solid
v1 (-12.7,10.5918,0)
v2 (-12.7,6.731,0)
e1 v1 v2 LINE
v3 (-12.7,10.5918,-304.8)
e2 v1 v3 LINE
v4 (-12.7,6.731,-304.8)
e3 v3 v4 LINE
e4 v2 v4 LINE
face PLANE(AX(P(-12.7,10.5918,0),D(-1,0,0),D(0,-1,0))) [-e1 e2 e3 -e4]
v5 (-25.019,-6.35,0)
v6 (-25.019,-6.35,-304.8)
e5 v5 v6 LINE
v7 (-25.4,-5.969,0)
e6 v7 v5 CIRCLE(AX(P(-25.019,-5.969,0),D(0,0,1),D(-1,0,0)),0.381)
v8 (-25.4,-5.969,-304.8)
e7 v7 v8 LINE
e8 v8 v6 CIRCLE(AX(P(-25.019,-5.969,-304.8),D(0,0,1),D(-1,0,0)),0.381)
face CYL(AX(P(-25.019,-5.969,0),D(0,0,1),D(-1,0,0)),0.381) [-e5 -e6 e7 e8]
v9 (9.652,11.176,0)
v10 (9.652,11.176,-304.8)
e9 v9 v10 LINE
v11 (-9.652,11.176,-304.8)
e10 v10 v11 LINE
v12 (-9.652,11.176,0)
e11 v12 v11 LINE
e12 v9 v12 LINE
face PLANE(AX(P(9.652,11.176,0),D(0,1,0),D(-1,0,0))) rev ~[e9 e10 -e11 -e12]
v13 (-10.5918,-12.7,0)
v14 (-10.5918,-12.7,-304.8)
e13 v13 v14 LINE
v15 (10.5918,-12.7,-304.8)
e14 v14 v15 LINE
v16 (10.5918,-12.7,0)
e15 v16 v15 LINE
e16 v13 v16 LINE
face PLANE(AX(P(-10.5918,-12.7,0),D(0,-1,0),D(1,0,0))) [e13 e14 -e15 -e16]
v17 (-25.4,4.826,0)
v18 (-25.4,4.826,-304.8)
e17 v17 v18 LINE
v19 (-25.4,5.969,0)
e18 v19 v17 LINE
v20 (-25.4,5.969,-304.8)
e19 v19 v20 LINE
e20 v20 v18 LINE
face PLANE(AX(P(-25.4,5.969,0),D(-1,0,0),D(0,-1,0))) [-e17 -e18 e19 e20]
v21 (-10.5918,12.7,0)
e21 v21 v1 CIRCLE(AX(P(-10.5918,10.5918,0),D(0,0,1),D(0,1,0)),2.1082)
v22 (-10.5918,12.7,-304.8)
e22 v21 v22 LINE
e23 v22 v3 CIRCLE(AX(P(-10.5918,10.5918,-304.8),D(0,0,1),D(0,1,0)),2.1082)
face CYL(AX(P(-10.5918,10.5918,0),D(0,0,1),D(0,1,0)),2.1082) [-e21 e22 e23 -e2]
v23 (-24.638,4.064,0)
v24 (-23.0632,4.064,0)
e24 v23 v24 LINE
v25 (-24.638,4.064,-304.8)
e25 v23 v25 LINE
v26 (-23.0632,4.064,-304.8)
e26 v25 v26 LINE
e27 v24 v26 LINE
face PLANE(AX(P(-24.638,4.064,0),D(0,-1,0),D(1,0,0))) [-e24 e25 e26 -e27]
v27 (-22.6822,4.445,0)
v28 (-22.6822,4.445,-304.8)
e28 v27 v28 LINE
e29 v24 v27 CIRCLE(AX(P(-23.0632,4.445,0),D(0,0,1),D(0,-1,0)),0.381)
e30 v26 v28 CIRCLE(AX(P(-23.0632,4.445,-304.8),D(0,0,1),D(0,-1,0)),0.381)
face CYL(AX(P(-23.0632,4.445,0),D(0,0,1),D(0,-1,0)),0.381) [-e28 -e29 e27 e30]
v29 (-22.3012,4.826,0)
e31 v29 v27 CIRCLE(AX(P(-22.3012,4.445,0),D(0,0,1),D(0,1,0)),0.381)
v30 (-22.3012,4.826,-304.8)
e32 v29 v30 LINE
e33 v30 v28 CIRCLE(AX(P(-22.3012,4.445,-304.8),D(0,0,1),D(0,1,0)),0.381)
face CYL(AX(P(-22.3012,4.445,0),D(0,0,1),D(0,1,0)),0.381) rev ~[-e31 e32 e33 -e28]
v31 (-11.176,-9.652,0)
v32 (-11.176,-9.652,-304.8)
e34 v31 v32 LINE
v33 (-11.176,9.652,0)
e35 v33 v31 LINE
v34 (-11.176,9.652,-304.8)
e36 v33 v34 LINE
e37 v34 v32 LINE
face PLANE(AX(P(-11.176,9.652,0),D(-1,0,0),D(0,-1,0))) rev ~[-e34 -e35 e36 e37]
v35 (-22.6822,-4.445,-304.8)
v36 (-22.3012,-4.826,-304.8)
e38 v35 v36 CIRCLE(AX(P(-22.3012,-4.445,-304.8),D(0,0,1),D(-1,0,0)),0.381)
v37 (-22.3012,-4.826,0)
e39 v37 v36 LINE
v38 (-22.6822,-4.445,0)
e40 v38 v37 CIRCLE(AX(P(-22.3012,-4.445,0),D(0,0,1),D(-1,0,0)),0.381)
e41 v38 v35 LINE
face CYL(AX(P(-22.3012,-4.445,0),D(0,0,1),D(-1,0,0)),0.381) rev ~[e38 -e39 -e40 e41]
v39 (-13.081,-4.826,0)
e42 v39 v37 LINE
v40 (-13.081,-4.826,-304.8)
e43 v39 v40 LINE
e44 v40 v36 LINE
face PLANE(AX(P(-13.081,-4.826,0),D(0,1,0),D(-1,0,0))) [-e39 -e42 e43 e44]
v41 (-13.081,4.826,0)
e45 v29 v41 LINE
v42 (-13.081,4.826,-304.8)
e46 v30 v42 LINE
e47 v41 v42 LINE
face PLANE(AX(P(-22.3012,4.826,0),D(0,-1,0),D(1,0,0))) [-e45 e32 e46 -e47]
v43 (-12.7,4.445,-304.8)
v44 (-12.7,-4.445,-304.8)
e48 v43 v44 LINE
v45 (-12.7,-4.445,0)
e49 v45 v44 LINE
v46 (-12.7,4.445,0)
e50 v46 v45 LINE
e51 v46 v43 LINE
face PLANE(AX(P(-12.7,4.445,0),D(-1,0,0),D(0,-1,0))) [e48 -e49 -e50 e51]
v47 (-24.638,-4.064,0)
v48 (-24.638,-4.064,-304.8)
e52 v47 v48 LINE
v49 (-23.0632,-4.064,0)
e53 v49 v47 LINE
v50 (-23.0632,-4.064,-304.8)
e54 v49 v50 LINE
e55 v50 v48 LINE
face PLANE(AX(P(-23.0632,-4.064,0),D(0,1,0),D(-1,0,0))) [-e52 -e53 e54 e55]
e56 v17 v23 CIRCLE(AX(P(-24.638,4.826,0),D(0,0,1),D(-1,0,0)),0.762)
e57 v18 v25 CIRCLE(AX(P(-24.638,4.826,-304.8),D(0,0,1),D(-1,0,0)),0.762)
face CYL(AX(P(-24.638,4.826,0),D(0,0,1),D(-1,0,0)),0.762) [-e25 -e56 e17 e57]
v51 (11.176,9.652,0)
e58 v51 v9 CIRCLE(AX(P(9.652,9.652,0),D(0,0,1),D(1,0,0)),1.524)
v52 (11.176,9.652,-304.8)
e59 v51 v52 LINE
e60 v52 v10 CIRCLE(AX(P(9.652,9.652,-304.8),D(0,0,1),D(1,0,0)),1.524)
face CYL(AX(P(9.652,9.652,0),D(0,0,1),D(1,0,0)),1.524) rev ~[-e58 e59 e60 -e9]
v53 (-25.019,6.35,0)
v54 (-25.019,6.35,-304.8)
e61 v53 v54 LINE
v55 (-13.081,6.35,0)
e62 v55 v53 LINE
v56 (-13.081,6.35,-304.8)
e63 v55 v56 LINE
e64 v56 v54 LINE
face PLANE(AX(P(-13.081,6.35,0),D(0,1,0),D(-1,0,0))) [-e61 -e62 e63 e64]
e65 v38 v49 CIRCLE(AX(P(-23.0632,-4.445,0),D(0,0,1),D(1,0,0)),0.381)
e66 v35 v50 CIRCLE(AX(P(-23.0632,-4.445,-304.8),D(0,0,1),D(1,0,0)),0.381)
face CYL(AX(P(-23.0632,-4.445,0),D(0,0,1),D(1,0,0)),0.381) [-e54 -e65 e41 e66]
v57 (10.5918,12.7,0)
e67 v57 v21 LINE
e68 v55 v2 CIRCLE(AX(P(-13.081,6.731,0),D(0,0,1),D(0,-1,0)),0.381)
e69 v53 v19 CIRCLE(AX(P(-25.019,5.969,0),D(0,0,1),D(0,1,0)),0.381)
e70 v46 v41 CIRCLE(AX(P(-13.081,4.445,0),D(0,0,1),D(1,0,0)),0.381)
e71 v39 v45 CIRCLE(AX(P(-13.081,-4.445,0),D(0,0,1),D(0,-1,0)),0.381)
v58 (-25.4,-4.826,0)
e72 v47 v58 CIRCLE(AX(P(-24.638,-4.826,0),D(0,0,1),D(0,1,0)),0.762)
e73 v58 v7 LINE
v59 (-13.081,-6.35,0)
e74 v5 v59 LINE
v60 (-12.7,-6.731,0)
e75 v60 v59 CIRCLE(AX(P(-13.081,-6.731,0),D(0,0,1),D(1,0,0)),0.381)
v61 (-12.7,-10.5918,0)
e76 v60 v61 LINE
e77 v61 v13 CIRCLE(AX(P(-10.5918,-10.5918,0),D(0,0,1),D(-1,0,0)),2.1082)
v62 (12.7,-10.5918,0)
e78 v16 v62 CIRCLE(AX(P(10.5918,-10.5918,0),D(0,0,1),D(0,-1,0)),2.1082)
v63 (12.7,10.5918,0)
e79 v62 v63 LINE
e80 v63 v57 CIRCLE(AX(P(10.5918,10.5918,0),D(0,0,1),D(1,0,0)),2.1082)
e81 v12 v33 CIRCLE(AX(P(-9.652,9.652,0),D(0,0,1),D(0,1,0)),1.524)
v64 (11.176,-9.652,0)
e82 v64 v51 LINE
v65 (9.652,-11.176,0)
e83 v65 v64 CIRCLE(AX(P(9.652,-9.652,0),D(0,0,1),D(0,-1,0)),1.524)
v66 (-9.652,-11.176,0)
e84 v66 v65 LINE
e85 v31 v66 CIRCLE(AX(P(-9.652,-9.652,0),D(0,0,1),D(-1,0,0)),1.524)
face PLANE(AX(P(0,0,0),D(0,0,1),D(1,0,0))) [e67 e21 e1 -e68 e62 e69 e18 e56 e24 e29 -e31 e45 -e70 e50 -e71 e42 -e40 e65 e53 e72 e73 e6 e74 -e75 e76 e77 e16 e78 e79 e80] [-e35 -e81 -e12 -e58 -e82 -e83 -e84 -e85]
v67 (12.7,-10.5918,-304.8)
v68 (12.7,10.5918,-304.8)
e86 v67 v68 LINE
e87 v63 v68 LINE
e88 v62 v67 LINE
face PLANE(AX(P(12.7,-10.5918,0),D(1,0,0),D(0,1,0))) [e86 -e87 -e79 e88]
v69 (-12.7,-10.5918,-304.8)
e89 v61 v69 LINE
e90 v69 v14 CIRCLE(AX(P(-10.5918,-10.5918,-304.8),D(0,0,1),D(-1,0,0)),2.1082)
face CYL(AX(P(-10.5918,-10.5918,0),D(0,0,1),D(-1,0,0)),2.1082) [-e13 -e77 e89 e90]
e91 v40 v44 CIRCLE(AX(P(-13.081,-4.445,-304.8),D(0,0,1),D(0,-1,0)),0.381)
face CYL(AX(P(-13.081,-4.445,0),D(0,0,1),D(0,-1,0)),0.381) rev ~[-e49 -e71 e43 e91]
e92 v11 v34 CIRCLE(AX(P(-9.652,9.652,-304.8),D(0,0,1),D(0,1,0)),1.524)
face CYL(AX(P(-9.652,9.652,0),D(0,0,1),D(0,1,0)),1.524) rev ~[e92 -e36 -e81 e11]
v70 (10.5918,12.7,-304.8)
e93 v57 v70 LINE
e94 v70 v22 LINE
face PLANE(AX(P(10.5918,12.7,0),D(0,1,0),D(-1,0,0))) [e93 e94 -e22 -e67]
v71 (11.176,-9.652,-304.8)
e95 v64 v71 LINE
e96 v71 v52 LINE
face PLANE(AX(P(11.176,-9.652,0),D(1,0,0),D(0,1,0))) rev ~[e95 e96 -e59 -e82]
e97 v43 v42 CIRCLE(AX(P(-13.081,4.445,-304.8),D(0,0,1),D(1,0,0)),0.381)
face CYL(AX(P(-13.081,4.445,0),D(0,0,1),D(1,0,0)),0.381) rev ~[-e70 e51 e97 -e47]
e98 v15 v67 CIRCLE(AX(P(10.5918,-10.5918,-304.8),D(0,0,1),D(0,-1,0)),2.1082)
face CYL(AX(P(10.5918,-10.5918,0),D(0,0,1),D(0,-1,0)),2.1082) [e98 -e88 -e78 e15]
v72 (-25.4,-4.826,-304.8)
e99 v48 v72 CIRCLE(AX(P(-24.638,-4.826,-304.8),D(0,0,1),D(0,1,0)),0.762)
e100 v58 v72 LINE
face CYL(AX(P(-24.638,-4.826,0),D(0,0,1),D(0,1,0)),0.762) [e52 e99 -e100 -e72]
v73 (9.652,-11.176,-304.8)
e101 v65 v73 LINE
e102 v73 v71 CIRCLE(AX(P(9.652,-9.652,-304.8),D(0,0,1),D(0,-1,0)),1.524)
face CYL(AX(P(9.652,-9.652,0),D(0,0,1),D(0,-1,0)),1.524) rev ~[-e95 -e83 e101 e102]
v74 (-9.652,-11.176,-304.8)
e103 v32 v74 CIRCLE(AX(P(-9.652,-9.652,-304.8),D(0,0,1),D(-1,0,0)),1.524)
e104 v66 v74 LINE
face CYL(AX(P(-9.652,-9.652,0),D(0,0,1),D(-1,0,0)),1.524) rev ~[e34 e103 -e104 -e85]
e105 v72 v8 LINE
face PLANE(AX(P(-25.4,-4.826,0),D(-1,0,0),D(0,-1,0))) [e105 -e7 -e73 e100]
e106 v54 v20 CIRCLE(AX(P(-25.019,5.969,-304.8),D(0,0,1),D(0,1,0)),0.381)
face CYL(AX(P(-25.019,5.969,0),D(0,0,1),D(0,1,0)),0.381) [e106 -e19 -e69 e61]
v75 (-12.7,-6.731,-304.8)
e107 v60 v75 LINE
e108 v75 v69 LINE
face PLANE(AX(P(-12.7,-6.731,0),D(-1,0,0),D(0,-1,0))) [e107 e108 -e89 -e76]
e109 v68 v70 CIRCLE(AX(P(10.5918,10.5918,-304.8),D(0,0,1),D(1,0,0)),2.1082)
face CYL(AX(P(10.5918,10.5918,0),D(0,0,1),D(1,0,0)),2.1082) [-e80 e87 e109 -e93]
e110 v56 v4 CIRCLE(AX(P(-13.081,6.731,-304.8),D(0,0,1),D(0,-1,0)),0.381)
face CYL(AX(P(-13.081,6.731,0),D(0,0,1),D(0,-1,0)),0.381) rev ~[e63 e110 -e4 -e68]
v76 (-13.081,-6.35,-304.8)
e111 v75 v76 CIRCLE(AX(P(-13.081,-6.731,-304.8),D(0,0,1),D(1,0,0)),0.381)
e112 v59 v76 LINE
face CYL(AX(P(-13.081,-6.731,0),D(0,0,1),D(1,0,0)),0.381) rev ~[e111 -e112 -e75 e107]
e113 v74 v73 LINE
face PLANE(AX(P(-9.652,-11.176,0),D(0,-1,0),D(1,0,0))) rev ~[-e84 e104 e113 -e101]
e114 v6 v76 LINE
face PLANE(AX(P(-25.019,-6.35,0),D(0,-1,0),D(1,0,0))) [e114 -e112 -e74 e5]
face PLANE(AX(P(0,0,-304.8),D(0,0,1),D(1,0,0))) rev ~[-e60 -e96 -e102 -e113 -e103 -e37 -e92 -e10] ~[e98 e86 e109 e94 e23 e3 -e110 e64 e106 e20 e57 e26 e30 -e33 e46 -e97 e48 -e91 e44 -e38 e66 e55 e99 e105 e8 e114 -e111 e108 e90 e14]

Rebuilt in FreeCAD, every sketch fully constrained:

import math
import FreeCAD as App
import Part
import Sketcher

V = App.Vector
Q = App.Units.Quantity

doc = App.newDocument("Part")
body = doc.addObject("PartDesign::Body", "Body")

# Sketch on XY plane
sketch1 = body.newObject("Sketcher::SketchObject", "Sketch")
sketch1.AttachmentSupport = (doc.getObject("XY_Plane"), [""])
sketch1.MapMode = "FlatFace"
sketch1.addGeometry([
    Part.LineSegment(V(12.7, -10.5918, 0), V(12.7, 10.5918, 0)),  # 0
    Part.ArcOfCircle(Part.Circle(V(10.5918, 10.5918, 0), V(0, 0, 1), 2.1082), math.radians(0), math.radians(90)),  # 1
    Part.LineSegment(V(10.5918, 12.7, 0), V(-10.5918, 12.7, 0)),  # 2
    Part.ArcOfCircle(Part.Circle(V(-10.5918, 10.5918, 0), V(0, 0, 1), 2.1082), math.radians(90), math.radians(180)),  # 3
    Part.LineSegment(V(-12.7, 10.5918, 0), V(-12.7, 6.731, 0)),  # 4
    Part.ArcOfCircle(Part.Circle(V(-13.081, 6.731, 0), V(0, 0, 1), 0.381), math.radians(-90), math.radians(0)),  # 5
    Part.LineSegment(V(-13.081, 6.35, 0), V(-25.019, 6.35, 0)),  # 6
    Part.ArcOfCircle(Part.Circle(V(-25.019, 5.969, 0), V(0, 0, 1), 0.381), math.radians(90), math.radians(180)),  # 7
    Part.LineSegment(V(-25.4, 5.969, 0), V(-25.4, 4.826, 0)),  # 8
    Part.ArcOfCircle(Part.Circle(V(-24.638, 4.826, 0), V(0, 0, 1), 0.762), math.radians(180), math.radians(270)),  # 9
    Part.LineSegment(V(-24.638, 4.064, 0), V(-23.0632, 4.064, 0)),  # 10
    Part.ArcOfCircle(Part.Circle(V(-23.0632, 4.445, 0), V(0, 0, 1), 0.381), math.radians(-90), math.radians(0)),  # 11
    Part.ArcOfCircle(Part.Circle(V(-22.3012, 4.445, 0), V(0, 0, 1), 0.381), math.radians(90), math.radians(180)),  # 12
    Part.LineSegment(V(-22.3012, 4.826, 0), V(-13.081, 4.826, 0)),  # 13
    Part.ArcOfCircle(Part.Circle(V(-13.081, 4.445, 0), V(0, 0, 1), 0.381), math.radians(0), math.radians(90)),  # 14
    Part.LineSegment(V(-12.7, 4.445, 0), V(-12.7, -4.445, 0)),  # 15
    Part.ArcOfCircle(Part.Circle(V(-13.081, -4.445, 0), V(0, 0, 1), 0.381), math.radians(-90), math.radians(0)),  # 16
    Part.LineSegment(V(-13.081, -4.826, 0), V(-22.3012, -4.826, 0)),  # 17
    Part.ArcOfCircle(Part.Circle(V(-22.3012, -4.445, 0), V(0, 0, 1), 0.381), math.radians(180), math.radians(270)),  # 18
    Part.ArcOfCircle(Part.Circle(V(-23.0632, -4.445, 0), V(0, 0, 1), 0.381), math.radians(0), math.radians(90)),  # 19
    Part.LineSegment(V(-23.0632, -4.064, 0), V(-24.638, -4.064, 0)),  # 20
    Part.ArcOfCircle(Part.Circle(V(-24.638, -4.826, 0), V(0, 0, 1), 0.762), math.radians(90), math.radians(180)),  # 21
    Part.LineSegment(V(-25.4, -4.826, 0), V(-25.4, -5.969, 0)),  # 22
    Part.ArcOfCircle(Part.Circle(V(-25.019, -5.969, 0), V(0, 0, 1), 0.381), math.radians(180), math.radians(270)),  # 23
    Part.LineSegment(V(-25.019, -6.35, 0), V(-13.081, -6.35, 0)),  # 24
    Part.ArcOfCircle(Part.Circle(V(-13.081, -6.731, 0), V(0, 0, 1), 0.381), math.radians(0), math.radians(90)),  # 25
    Part.LineSegment(V(-12.7, -6.731, 0), V(-12.7, -10.5918, 0)),  # 26
    Part.ArcOfCircle(Part.Circle(V(-10.5918, -10.5918, 0), V(0, 0, 1), 2.1082), math.radians(180), math.radians(270)),  # 27
    Part.LineSegment(V(-10.5918, -12.7, 0), V(10.5918, -12.7, 0)),  # 28
    Part.ArcOfCircle(Part.Circle(V(10.5918, -10.5918, 0), V(0, 0, 1), 2.1082), math.radians(-90), math.radians(0)),  # 29
    Part.ArcOfCircle(Part.Circle(V(-9.652, -9.652, 0), V(0, 0, 1), 1.524), math.radians(180), math.radians(270)),  # 30
    Part.LineSegment(V(-11.176, -9.652, 0), V(-11.176, 9.652, 0)),  # 31
    Part.ArcOfCircle(Part.Circle(V(-9.652, 9.652, 0), V(0, 0, 1), 1.524), math.radians(90), math.radians(180)),  # 32
    Part.LineSegment(V(-9.652, 11.176, 0), V(9.652, 11.176, 0)),  # 33
    Part.ArcOfCircle(Part.Circle(V(9.652, 9.652, 0), V(0, 0, 1), 1.524), math.radians(0), math.radians(90)),  # 34
    Part.LineSegment(V(11.176, 9.652, 0), V(11.176, -9.652, 0)),  # 35
    Part.ArcOfCircle(Part.Circle(V(9.652, -9.652, 0), V(0, 0, 1), 1.524), math.radians(-90), math.radians(0)),  # 36
    Part.LineSegment(V(9.652, -11.176, 0), V(-9.652, -11.176, 0)),  # 37
], False)
sketch1.addConstraint([
    Sketcher.Constraint("Tangent", 0, 2, 1, 1),
    Sketcher.Constraint("Tangent", 1, 2, 2, 1),
    Sketcher.Constraint("Tangent", 2, 2, 3, 1),
    Sketcher.Constraint("Tangent", 3, 2, 4, 1),
    Sketcher.Constraint("Tangent", 4, 2, 5, 2),
    Sketcher.Constraint("Tangent", 5, 1, 6, 1),
    Sketcher.Constraint("Tangent", 6, 2, 7, 1),
    Sketcher.Constraint("Tangent", 7, 2, 8, 1),
    Sketcher.Constraint("Tangent", 8, 2, 9, 1),
    Sketcher.Constraint("Tangent", 9, 2, 10, 1),
    Sketcher.Constraint("Tangent", 10, 2, 11, 1),
    Sketcher.Constraint("Tangent", 11, 2, 12, 2),
    Sketcher.Constraint("Tangent", 12, 1, 13, 1),
    Sketcher.Constraint("Tangent", 13, 2, 14, 2),
    Sketcher.Constraint("Tangent", 14, 1, 15, 1),
    Sketcher.Constraint("Tangent", 15, 2, 16, 2),
    Sketcher.Constraint("Tangent", 16, 1, 17, 1),
    Sketcher.Constraint("Tangent", 17, 2, 18, 2),
    Sketcher.Constraint("Tangent", 18, 1, 19, 1),
    Sketcher.Constraint("Tangent", 19, 2, 20, 1),
    Sketcher.Constraint("Tangent", 20, 2, 21, 1),
    Sketcher.Constraint("Tangent", 21, 2, 22, 1),
    Sketcher.Constraint("Tangent", 22, 2, 23, 1),
    Sketcher.Constraint("Tangent", 23, 2, 24, 1),
    Sketcher.Constraint("Tangent", 24, 2, 25, 2),
    Sketcher.Constraint("Tangent", 25, 1, 26, 1),
    Sketcher.Constraint("Tangent", 26, 2, 27, 1),
    Sketcher.Constraint("Tangent", 27, 2, 28, 1),
    Sketcher.Constraint("Tangent", 28, 2, 29, 1),
    Sketcher.Constraint("Tangent", 29, 2, 0, 1),
    Sketcher.Constraint("Tangent", 30, 1, 31, 1),
    Sketcher.Constraint("Tangent", 31, 2, 32, 2),
    Sketcher.Constraint("Tangent", 32, 1, 33, 1),
    Sketcher.Constraint("Tangent", 33, 2, 34, 2),
    Sketcher.Constraint("Tangent", 34, 1, 35, 1),
    Sketcher.Constraint("Tangent", 35, 2, 36, 2),
    Sketcher.Constraint("Tangent", 36, 1, 37, 1),
    Sketcher.Constraint("Tangent", 37, 2, 30, 2),
    Sketcher.Constraint("Vertical", 0),
    Sketcher.Constraint("Horizontal", 2),
    Sketcher.Constraint("Vertical", 4),
    Sketcher.Constraint("Horizontal", 6),
    Sketcher.Constraint("Vertical", 8),
    Sketcher.Constraint("Horizontal", 10),
    Sketcher.Constraint("Horizontal", 13),
    Sketcher.Constraint("Vertical", 15),
    Sketcher.Constraint("Horizontal", 17),
    Sketcher.Constraint("Horizontal", 20),
    Sketcher.Constraint("Vertical", 22),
    Sketcher.Constraint("Horizontal", 24),
    Sketcher.Constraint("Vertical", 26),
    Sketcher.Constraint("Horizontal", 28),
    Sketcher.Constraint("Vertical", 31),
    Sketcher.Constraint("Horizontal", 33),
    Sketcher.Constraint("Vertical", 35),
    Sketcher.Constraint("Horizontal", 37),
    Sketcher.Constraint("Equal", 1, 3),
    Sketcher.Constraint("Equal", 5, 7),
    Sketcher.Constraint("Equal", 7, 11),
    Sketcher.Constraint("Equal", 11, 12),
    Sketcher.Constraint("Equal", 12, 14),
    Sketcher.Constraint("Equal", 14, 16),
    Sketcher.Constraint("Equal", 16, 18),
    Sketcher.Constraint("Equal", 18, 19),
    Sketcher.Constraint("Equal", 9, 21),
    Sketcher.Constraint("Equal", 19, 23),
    Sketcher.Constraint("Equal", 23, 25),
    Sketcher.Constraint("Equal", 3, 27),
    Sketcher.Constraint("Equal", 27, 29),
    Sketcher.Constraint("Equal", 30, 32),
    Sketcher.Constraint("Equal", 32, 34),
    Sketcher.Constraint("Equal", 34, 36),
    Sketcher.Constraint("Symmetric", 1, 3, 27, 3, -1, 1),
    Sketcher.Constraint("Symmetric", 30, 3, 34, 3, -1, 1),
    Sketcher.Constraint("Symmetric", 12, 3, 18, 3, -1),
    Sketcher.Constraint("Symmetric", 9, 3, 21, 3, -1),
    Sketcher.Constraint("Symmetric", 5, 3, 25, 3, -1),
    Sketcher.Constraint("Horizontal", 11, 3, 12, 3),
    Sketcher.Constraint("Horizontal", 8, 2, 12, 1),
    Sketcher.Constraint("Vertical", 5, 3, 14, 3),
    Sketcher.Constraint("Equal", 28, 0),
    Sketcher.Constraint("Equal", 37, 31),
    Sketcher.Constraint("Radius", 9, Q("0.03 in")),
    Sketcher.Constraint("Radius", 30, Q("0.06 in")),
    Sketcher.Constraint("DistanceX", 7, 2, -1, 1, Q("1 in")),
    Sketcher.Constraint("Radius", 1, Q("0.083 in")),
    Sketcher.Constraint("DistanceX", 6, 2, 6, 1, Q("0.47 in")),
    Sketcher.Constraint("DistanceX", 33, 1, 33, 2, Q("0.76 in")),
    Sketcher.Constraint("DistanceY", 15, 2, 15, 1, Q("0.35 in")),
    Sketcher.Constraint("DistanceX", 10, 1, 10, 2, Q("0.062 in")),
    Sketcher.Constraint("DistanceY", 4, 2, 4, 1, Q("0.152 in")),
])
pad1 = body.newObject("PartDesign::Pad", "Pad")
pad1.Profile = sketch1
pad1.Length = Q("12 in")
pad1.Reversed = True

doc.recompute()
